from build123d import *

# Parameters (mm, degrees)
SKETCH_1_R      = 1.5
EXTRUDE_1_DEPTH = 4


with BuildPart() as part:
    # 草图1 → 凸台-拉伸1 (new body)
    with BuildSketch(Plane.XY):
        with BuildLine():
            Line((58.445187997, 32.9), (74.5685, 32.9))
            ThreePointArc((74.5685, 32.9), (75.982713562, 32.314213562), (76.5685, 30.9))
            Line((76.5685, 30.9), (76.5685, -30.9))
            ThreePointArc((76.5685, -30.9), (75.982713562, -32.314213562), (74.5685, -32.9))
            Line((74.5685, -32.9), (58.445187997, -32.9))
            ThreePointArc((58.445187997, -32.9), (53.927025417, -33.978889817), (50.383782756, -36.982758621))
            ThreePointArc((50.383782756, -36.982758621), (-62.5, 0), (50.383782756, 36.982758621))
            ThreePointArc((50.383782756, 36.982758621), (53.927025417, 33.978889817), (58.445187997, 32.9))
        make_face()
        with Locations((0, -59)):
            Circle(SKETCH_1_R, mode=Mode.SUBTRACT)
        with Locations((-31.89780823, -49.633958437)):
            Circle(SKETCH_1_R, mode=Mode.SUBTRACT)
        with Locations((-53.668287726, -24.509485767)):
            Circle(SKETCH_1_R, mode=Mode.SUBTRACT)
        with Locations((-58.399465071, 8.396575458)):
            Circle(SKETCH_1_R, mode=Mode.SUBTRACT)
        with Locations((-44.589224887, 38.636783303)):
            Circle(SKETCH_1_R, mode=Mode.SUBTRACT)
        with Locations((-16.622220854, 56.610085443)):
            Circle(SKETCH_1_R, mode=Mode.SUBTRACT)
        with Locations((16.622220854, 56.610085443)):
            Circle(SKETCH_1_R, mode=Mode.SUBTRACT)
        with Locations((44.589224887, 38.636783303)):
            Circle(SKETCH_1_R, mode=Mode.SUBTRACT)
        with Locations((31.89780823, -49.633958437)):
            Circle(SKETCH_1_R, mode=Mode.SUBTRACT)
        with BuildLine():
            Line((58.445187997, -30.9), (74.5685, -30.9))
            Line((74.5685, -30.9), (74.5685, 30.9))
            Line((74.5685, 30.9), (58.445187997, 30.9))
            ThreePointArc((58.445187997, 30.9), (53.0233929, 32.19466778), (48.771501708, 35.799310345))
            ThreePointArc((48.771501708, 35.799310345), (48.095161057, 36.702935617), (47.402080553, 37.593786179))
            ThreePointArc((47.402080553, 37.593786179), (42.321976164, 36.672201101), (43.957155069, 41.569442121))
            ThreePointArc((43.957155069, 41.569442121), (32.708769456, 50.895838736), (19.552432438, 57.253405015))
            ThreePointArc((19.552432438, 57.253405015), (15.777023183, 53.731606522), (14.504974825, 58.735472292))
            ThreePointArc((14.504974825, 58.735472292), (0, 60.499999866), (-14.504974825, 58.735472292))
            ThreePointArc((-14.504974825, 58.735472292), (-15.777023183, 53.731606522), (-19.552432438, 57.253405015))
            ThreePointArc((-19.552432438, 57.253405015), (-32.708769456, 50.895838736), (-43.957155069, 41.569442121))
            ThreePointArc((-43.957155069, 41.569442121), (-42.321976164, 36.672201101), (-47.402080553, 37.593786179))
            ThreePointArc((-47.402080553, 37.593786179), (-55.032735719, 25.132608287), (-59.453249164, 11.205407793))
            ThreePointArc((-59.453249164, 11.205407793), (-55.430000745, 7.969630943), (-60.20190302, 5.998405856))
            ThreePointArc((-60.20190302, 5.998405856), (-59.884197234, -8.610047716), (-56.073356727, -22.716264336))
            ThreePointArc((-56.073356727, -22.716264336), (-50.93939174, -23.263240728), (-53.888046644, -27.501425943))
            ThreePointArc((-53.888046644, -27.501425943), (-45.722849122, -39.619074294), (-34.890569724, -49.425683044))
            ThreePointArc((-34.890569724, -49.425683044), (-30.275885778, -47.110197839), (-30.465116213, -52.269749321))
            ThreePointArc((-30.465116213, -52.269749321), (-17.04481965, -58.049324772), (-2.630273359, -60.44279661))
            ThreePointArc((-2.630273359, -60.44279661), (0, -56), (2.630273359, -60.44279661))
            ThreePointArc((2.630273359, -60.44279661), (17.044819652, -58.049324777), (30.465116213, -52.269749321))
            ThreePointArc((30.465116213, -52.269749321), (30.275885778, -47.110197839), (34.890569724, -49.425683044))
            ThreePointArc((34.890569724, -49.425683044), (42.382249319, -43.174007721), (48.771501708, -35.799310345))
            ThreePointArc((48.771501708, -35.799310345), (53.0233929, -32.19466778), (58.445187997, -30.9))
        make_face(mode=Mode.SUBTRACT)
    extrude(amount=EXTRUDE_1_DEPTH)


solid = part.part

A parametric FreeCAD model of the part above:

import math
import FreeCAD as App
import Part
import Sketcher
Q = App.Units.Quantity

doc = App.newDocument("Part")
body = doc.addObject("PartDesign::Body", "Body")

# Sketch on XY plane
sketch1 = body.newObject("Sketcher::SketchObject", "Sketch")
sketch1.AttachmentSupport = (doc.getObject("XY_Plane"), [""])
sketch1.MapMode = "FlatFace"
sketch1.addGeometry(Part.LineSegment(App.Vector(74.6, 32.9, 0), App.Vector(58.4, 32.9, 0)), False)
sketch1.addGeometry(Part.ArcOfCircle(Part.Circle(App.Vector(58.4, 42.9, 0), App.Vector(0, 0, 1), 10), math.radians(-144), math.radians(-90)), False)
sketch1.addGeometry(Part.ArcOfCircle(Part.Circle(App.Vector(0, 0, 0), App.Vector(0, 0, 1), 62.5), math.radians(36), math.radians(324)), False)
sketch1.addGeometry(Part.ArcOfCircle(Part.Circle(App.Vector(58.4, -42.9, 0), App.Vector(0, 0, 1), 10), math.radians(90), math.radians(144)), False)
sketch1.addGeometry(Part.LineSegment(App.Vector(58.4, -32.9, 0), App.Vector(74.6, -32.9, 0)), False)
sketch1.addGeometry(Part.ArcOfCircle(Part.Circle(App.Vector(74.6, -30.9, 0), App.Vector(0, 0, 1), 2), math.radians(-90), math.radians(0)), False)
sketch1.addGeometry(Part.LineSegment(App.Vector(76.6, -30.9, 0), App.Vector(76.6, 30.9, 0)), False)
sketch1.addGeometry(Part.ArcOfCircle(Part.Circle(App.Vector(74.6, 30.9, 0), App.Vector(0, 0, 1), 2), math.radians(0), math.radians(90)), False)
sketch1.addGeometry(Part.Circle(App.Vector(31.9, -49.6, 0), App.Vector(0, 0, 1), 1.5), False)
sketch1.addGeometry(Part.Circle(App.Vector(0, -59, 0), App.Vector(0, 0, 1), 1.5), False)
sketch1.addGeometry(Part.Circle(App.Vector(-31.9, -49.6, 0), App.Vector(0, 0, 1), 1.5), False)
sketch1.addGeometry(Part.Circle(App.Vector(-53.7, -24.5, 0), App.Vector(0, 0, 1), 1.5), False)
sketch1.addGeometry(Part.Circle(App.Vector(44.6, 38.6, 0), App.Vector(0, 0, 1), 1.5), False)
sketch1.addGeometry(Part.Circle(App.Vector(16.6, 56.6, 0), App.Vector(0, 0, 1), 1.5), False)
sketch1.addGeometry(Part.ArcOfCircle(Part.Circle(App.Vector(58.4, -42.9, 0), App.Vector(0, 0, 1), 12), math.radians(90), math.radians(144)), False)
sketch1.addGeometry(Part.ArcOfCircle(Part.Circle(App.Vector(0, 0, 0), App.Vector(0, 0, 1), 60.5), math.radians(-54.78), math.radians(-36.28)), False)
sketch1.addGeometry(Part.ArcOfCircle(Part.Circle(App.Vector(31.9, -49.6, 0), App.Vector(0, 0, 1), 3), math.radians(4), math.radians(241)), False)
sketch1.addGeometry(Part.ArcOfCircle(Part.Circle(App.Vector(0, 0, 0), App.Vector(0, 0, 1), 60.5), math.radians(-88), math.radians(-60)), False)
sketch1.addGeometry(Part.ArcOfCircle(Part.Circle(App.Vector(0, -59, 0), App.Vector(0, 0, 1), 3), math.radians(-29), math.radians(209)), False)
sketch1.addGeometry(Part.ArcOfCircle(Part.Circle(App.Vector(0, 0, 0), App.Vector(0, 0, 1), 60.5), math.radians(-120), math.radians(-92)), False)
sketch1.addGeometry(Part.ArcOfCircle(Part.Circle(App.Vector(-31.9, -49.6, 0), App.Vector(0, 0, 1), 3), math.radians(-61), math.radians(176)), False)
sketch1.addGeometry(Part.ArcOfCircle(Part.Circle(App.Vector(0, 0, 0), App.Vector(0, 0, 1), 60.5), math.radians(-153), math.radians(-125)), False)
sketch1.addGeometry(Part.ArcOfCircle(Part.Circle(App.Vector(-53.7, -24.5, 0), App.Vector(0, 0, 1), 3), math.radians(-94), math.radians(143)), False)
sketch1.addGeometry(Part.ArcOfCircle(Part.Circle(App.Vector(0, 0, 0), App.Vector(0, 0, 1), 60.5), math.radians(174), math.radians(202)), False)
sketch1.addGeometry(Part.ArcOfCircle(Part.Circle(App.Vector(-58.4, 8.4, 0), App.Vector(0, 0, 1), 3), math.radians(-127), math.radians(111)), False)
sketch1.addGeometry(Part.ArcOfCircle(Part.Circle(App.Vector(0, 0, 0), App.Vector(0, 0, 1), 60.5), math.radians(142), math.radians(169)), False)
sketch1.addGeometry(Part.ArcOfCircle(Part.Circle(App.Vector(-44.6, 38.6, 0), App.Vector(0, 0, 1), 3), math.radians(-160), math.radians(78)), False)
sketch1.addGeometry(Part.ArcOfCircle(Part.Circle(App.Vector(0, 0, 0), App.Vector(0, 0, 1), 60.5), math.radians(109), math.radians(137)), False)
sketch1.addGeometry(Part.ArcOfCircle(Part.Circle(App.Vector(-16.6, 56.6, 0), App.Vector(0, 0, 1), 3), math.radians(168), math.radians(405)), False)
sketch1.addGeometry(Part.ArcOfCircle(Part.Circle(App.Vector(0, 0, 0), App.Vector(0, 0, 1), 60.5), math.radians(76), math.radians(104)), False)
sketch1.addGeometry(Part.ArcOfCircle(Part.Circle(App.Vector(16.6, 56.6, 0), App.Vector(0, 0, 1), 3), math.radians(135), math.radians(372)), False)
sketch1.addGeometry(Part.ArcOfCircle(Part.Circle(App.Vector(0, 0, 0), App.Vector(0, 0, 1), 60.5), math.radians(43), math.radians(71)), False)
sketch1.addGeometry(Part.ArcOfCircle(Part.Circle(App.Vector(44.6, 38.6, 0), App.Vector(0, 0, 1), 3), math.radians(102), math.radians(340)), False)
sketch1.addGeometry(Part.ArcOfCircle(Part.Circle(App.Vector(0, 0, 0), App.Vector(0, 0, 1), 60.5), math.radians(36.28), math.radians(38.42)), False)
sketch1.addGeometry(Part.ArcOfCircle(Part.Circle(App.Vector(58.4, 42.9, 0), App.Vector(0, 0, 1), 12), math.radians(-144), math.radians(-90)), False)
sketch1.addGeometry(Part.LineSegment(App.Vector(58.4, 30.9, 0), App.Vector(74.6, 30.9, 0)), False)
sketch1.addGeometry(Part.LineSegment(App.Vector(74.6, 30.9, 0), App.Vector(74.6, -30.9, 0)), False)
sketch1.addGeometry(Part.LineSegment(App.Vector(74.6, -30.9, 0), App.Vector(58.4, -30.9, 0)), False)
sketch1.addGeometry(Part.Circle(App.Vector(-58.4, 8.4, 0), App.Vector(0, 0, 1), 1.5), False)
sketch1.addGeometry(Part.Circle(App.Vector(-16.6, 56.6, 0), App.Vector(0, 0, 1), 1.5), False)
sketch1.addGeometry(Part.Circle(App.Vector(-44.6, 38.6, 0), App.Vector(0, 0, 1), 1.5), False)
sketch1.addConstraint(Sketcher.Constraint("Tangent", 0, 2, 1, 2))
sketch1.addConstraint(Sketcher.Constraint("Tangent", 1, 1, 2, 1))
sketch1.addConstraint(Sketcher.Constraint("Tangent", 2, 2, 3, 2))
sketch1.addConstraint(Sketcher.Constraint("Tangent", 3, 1, 4, 1))
sketch1.addConstraint(Sketcher.Constraint("Tangent", 4, 2, 5, 1))
sketch1.addConstraint(Sketcher.Constraint("Tangent", 5, 2, 6, 1))
sketch1.addConstraint(Sketcher.Constraint("Tangent", 6, 2, 7, 1))
sketch1.addConstraint(Sketcher.Constraint("Tangent", 7, 2, 0, 1))
sketch1.addConstraint(Sketcher.Constraint("Tangent", 14, 2, 15, 2))
sketch1.addConstraint(Sketcher.Constraint("Coincident", 15, 1, 16, 1))
sketch1.addConstraint(Sketcher.Constraint("Coincident", 16, 2, 17, 2))
sketch1.addConstraint(Sketcher.Constraint("Coincident", 17, 1, 18, 1))
sketch1.addConstraint(Sketcher.Constraint("Coincident", 18, 2, 19, 2))
sketch1.addConstraint(Sketcher.Constraint("Coincident", 19, 1, 20, 1))
sketch1.addConstraint(Sketcher.Constraint("Coincident", 20, 2, 21, 2))
sketch1.addConstraint(Sketcher.Constraint("Coincident", 21, 1, 22, 1))
sketch1.addConstraint(Sketcher.Constraint("Coincident", 22, 2, 23, 2))
sketch1.addConstraint(Sketcher.Constraint("Coincident", 23, 1, 24, 1))
sketch1.addConstraint(Sketcher.Constraint("Coincident", 24, 2, 25, 2))
sketch1.addConstraint(Sketcher.Constraint("Coincident", 25, 1, 26, 1))
sketch1.addConstraint(Sketcher.Constraint("Coincident", 26, 2, 27, 2))
sketch1.addConstraint(Sketcher.Constraint("Coincident", 27, 1, 28, 1))
sketch1.addConstraint(Sketcher.Constraint("Coincident", 28, 2, 29, 2))
sketch1.addConstraint(Sketcher.Constraint("Coincident", 29, 1, 30, 1))
sketch1.addConstraint(Sketcher.Constraint("Coincident", 30, 2, 31, 2))
sketch1.addConstraint(Sketcher.Constraint("Coincident", 31, 1, 32, 1))
sketch1.addConstraint(Sketcher.Constraint("Coincident", 32, 2, 33, 2))
sketch1.addConstraint(Sketcher.Constraint("Tangent", 33, 1, 34, 1))
sketch1.addConstraint(Sketcher.Constraint("Tangent", 34, 2, 35, 1))
sketch1.addConstraint(Sketcher.Constraint("Coincident", 35, 2, 36, 1))
sketch1.addConstraint(Sketcher.Constraint("Coincident", 36, 2, 37, 1))
sketch1.addConstraint(Sketcher.Constraint("Tangent", 37, 2, 14, 1))
sketch1.addConstraint(Sketcher.Constraint("Horizontal", 0))
sketch1.addConstraint(Sketcher.Constraint("Horizontal", 4))
sketch1.addConstraint(Sketcher.Constraint("Vertical", 6))
sketch1.addConstraint(Sketcher.Constraint("Horizontal", 35))
sketch1.addConstraint(Sketcher.Constraint("Vertical", 36))
sketch1.addConstraint(Sketcher.Constraint("Horizontal", 37))
sketch1.addConstraint(Sketcher.Constraint("Coincident", 2, 3, -1, 1))
sketch1.addConstraint(Sketcher.Constraint("Coincident", 15, 3, -1, 1))
sketch1.addConstraint(Sketcher.Constraint("Coincident", 17, 3, -1, 1))
sketch1.addConstraint(Sketcher.Constraint("Coincident", 19, 3, -1, 1))
sketch1.addConstraint(Sketcher.Constraint("Coincident", 21, 3, -1, 1))
sketch1.addConstraint(Sketcher.Constraint("Coincident", 23, 3, -1, 1))
sketch1.addConstraint(Sketcher.Constraint("Coincident", 25, 3, -1, 1))
sketch1.addConstraint(Sketcher.Constraint("Coincident", 27, 3, -1, 1))
sketch1.addConstraint(Sketcher.Constraint("Coincident", 29, 3, -1, 1))
sketch1.addConstraint(Sketcher.Constraint("Coincident", 31, 3, -1, 1))
sketch1.addConstraint(Sketcher.Constraint("Coincident", 33, 3, -1, 1))
sketch1.addConstraint(Sketcher.Constraint("Coincident", 14, 3, 3, 3))
sketch1.addConstraint(Sketcher.Constraint("Coincident", 16, 3, 8, 3))
sketch1.addConstraint(Sketcher.Constraint("Coincident", 18, 3, 9, 3))
sketch1.addConstraint(Sketcher.Constraint("Coincident", 20, 3, 10, 3))
sketch1.addConstraint(Sketcher.Constraint("Coincident", 22, 3, 11, 3))
sketch1.addConstraint(Sketcher.Constraint("Coincident", 30, 3, 13, 3))
sketch1.addConstraint(Sketcher.Constraint("Coincident", 32, 3, 12, 3))
sketch1.addConstraint(Sketcher.Constraint("Coincident", 34, 3, 1, 3))
sketch1.addConstraint(Sketcher.Constraint("Coincident", 38, 3, 24, 3))
sketch1.addConstraint(Sketcher.Constraint("Coincident", 39, 3, 28, 3))
sketch1.addConstraint(Sketcher.Constraint("Coincident", 40, 3, 26, 3))
sketch1.addConstraint(Sketcher.Constraint("Coincident", 35, 2, 7, 3))
sketch1.addConstraint(Sketcher.Constraint("Coincident", 36, 2, 5, 3))
sketch1.addConstraint(Sketcher.Constraint("Equal", 1, 3))
sketch1.addConstraint(Sketcher.Constraint("Equal", 8, 9))
sketch1.addConstraint(Sketcher.Constraint("Equal", 9, 10))
sketch1.addConstraint(Sketcher.Constraint("Equal", 10, 11))
sketch1.addConstraint(Sketcher.Constraint("Equal", 11, 12))
sketch1.addConstraint(Sketcher.Constraint("Equal", 12, 13))
sketch1.addConstraint(Sketcher.Constraint("Equal", 16, 18))
sketch1.addConstraint(Sketcher.Constraint("Equal", 17, 19))
sketch1.addConstraint(Sketcher.Constraint("Equal", 18, 20))
sketch1.addConstraint(Sketcher.Constraint("Equal", 19, 21))
sketch1.addConstraint(Sketcher.Constraint("Equal", 20, 22))
sketch1.addConstraint(Sketcher.Constraint("Equal", 15, 23))
sketch1.addConstraint(Sketcher.Constraint("Equal", 22, 24))
sketch1.addConstraint(Sketcher.Constraint("Equal", 23, 25))
sketch1.addConstraint(Sketcher.Constraint("Equal", 24, 26))
sketch1.addConstraint(Sketcher.Constraint("Equal", 25, 27))
sketch1.addConstraint(Sketcher.Constraint("Equal", 26, 28))
sketch1.addConstraint(Sketcher.Constraint("Equal", 21, 29))
sketch1.addConstraint(Sketcher.Constraint("Equal", 28, 30))
sketch1.addConstraint(Sketcher.Constraint("Equal", 27, 31))
sketch1.addConstraint(Sketcher.Constraint("Equal", 30, 32))
sketch1.addConstraint(Sketcher.Constraint("Equal", 13, 38))
sketch1.addConstraint(Sketcher.Constraint("Equal", 38, 39))
sketch1.addConstraint(Sketcher.Constraint("Equal", 39, 40))
sketch1.addConstraint(Sketcher.Constraint("Symmetric", 8, 3, 10, 3, -2))
sketch1.addConstraint(Sketcher.Constraint("Symmetric", 12, 3, 26, 3, -2))
sketch1.addConstraint(Sketcher.Constraint("Symmetric", 13, 3, 28, 3, -2))
sketch1.addConstraint(Sketcher.Constraint("PointOnObject", 9, 3, -2))
sketch1.addConstraint(Sketcher.Constraint("Horizontal", 15, 1, 20, 2))
sketch1.addConstraint(Sketcher.Constraint("Vertical", 1, 3, 3, 3))
sketch1.addConstraint(Sketcher.Constraint("Diameter", 8, Q("3 mm")))
sketch1.addConstraint(Sketcher.Constraint("Radius", 1, Q("10 mm")))
sketch1.addConstraint(Sketcher.Constraint("Radius", 5, Q("2 mm")))
sketch1.addConstraint(Sketcher.Constraint("Radius", 16, Q("3 mm")))
sketch1.addConstraint(Sketcher.Constraint("Radius", 2, Q("62.5 mm")))
sketch1.addConstraint(Sketcher.Constraint("DistanceY", 6, 1, 6, 2, Q("61.8 mm")))
sketch1.addConstraint(Sketcher.Constraint("DistanceY", 9, 3, -1, 1, Q("59 mm")))
sketch1.addConstraint(Sketcher.Constraint("DistanceX", -1, 1, 5, 3, Q("74.5685 mm")))
sketch1.addConstraint(Sketcher.Constraint("DistanceX", -1, 1, 8, 3, Q("31.897808 mm")))
sketch1.addConstraint(Sketcher.Constraint("DistanceY", 8, 3, -1, 1, Q("49.633958 mm")))
sketch1.addConstraint(Sketcher.Constraint("DistanceX", -1, 1, 13, 3, Q("16.622221 mm")))
sketch1.addConstraint(Sketcher.Constraint("DistanceX", 24, 2, -1, 1, Q("59.453249 mm")))
sketch1.addConstraint(Sketcher.Constraint("DistanceX", 25, 1, -1, 1, Q("47.402081 mm")))
sketch1.addConstraint(Sketcher.Constraint("DistanceX", 11, 3, -1, 1, Q("53.668288 mm")))
sketch1.addConstraint(Sketcher.Constraint("DistanceY", 11, 3, -1, 1, Q("24.509486 mm")))
sketch1.addConstraint(Sketcher.Constraint("DistanceX", -1, 1, 12, 3, Q("44.589225 mm")))
sketch1.addConstraint(Sketcher.Constraint("DistanceY", -1, 1, 13, 3, Q("56.610085 mm")))
sketch1.addConstraint(Sketcher.Constraint("DistanceX", 24, 3, -1, 1, Q("58.399465 mm")))
pad1 = body.newObject("PartDesign::Pad", "Pad")
pad1.Profile = sketch1
pad1.Length = 4

doc.recompute()
